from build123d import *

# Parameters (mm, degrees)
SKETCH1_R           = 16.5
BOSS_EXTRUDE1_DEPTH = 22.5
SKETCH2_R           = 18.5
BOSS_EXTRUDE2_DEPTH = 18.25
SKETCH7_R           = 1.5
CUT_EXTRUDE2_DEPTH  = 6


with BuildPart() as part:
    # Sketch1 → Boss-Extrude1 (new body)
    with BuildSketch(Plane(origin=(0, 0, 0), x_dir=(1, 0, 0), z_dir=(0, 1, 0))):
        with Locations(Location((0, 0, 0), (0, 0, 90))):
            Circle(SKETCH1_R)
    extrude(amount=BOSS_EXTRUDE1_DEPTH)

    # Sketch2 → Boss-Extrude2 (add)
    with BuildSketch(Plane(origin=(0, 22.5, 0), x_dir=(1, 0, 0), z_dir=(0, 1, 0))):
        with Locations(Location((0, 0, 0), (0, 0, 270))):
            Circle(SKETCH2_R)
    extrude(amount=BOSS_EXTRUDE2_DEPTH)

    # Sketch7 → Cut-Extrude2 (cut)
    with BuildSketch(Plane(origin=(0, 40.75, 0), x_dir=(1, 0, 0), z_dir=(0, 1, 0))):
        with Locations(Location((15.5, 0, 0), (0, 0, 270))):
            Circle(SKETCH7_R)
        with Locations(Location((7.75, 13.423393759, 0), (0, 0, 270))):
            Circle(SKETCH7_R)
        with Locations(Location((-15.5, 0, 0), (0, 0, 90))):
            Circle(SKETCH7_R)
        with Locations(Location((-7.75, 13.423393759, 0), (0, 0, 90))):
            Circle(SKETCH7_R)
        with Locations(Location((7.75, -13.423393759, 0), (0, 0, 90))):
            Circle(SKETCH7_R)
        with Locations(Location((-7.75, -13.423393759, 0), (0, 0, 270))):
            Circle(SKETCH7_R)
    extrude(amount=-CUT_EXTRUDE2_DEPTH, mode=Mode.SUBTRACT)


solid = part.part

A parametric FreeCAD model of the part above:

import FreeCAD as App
import Part
import Sketcher
from FreeCAD import Vector
Q = App.Units.Quantity

doc = App.newDocument("Part")
body = doc.addObject("PartDesign::Body", "Body")

# Sketch on XZ plane
sketch1 = body.newObject("Sketcher::SketchObject", "Sketch")
sketch1.AttachmentSupport = (doc.getObject("XZ_Plane"), [""])
sketch1.MapMode = "FlatFace"
sketch1.addGeometry(Part.Circle(Vector(0, 0, 0), Vector(0, 0, 1), 16.5), False)
sketch1.addConstraint([
    Sketcher.Constraint("Coincident", 0, 3, -1, 1),
    Sketcher.Constraint("Diameter", 0, Q("33 mm")),
])
pad1 = body.newObject("PartDesign::Pad", "Pad")
pad1.Profile = sketch1
pad1.Length = 22.5
pad1.Reversed = True

# Sketch on XZ plane
sketch2 = body.newObject("Sketcher::SketchObject", "Sketch001")
sketch2.AttachmentSupport = (doc.getObject("XZ_Plane"), [""])
sketch2.MapMode = "FlatFace"
sketch2.AttachmentOffset = App.Placement(Vector(0, 0, -22.5), App.Rotation())
sketch2.addGeometry(Part.Circle(Vector(0, 0, 0), Vector(0, 0, 1), 18.5), False)
sketch2.addConstraint([
    Sketcher.Constraint("Coincident", 0, 3, -1, 1),
    Sketcher.Constraint("Diameter", 0, Q("37 mm")),
])
pad2 = body.newObject("PartDesign::Pad", "Pad001")
pad2.Profile = sketch2
pad2.Length = 18.25
pad2.Reversed = True

# Sketch on XZ plane
sketch3 = body.newObject("Sketcher::SketchObject", "Sketch002")
sketch3.AttachmentSupport = (doc.getObject("XZ_Plane"), [""])
sketch3.MapMode = "FlatFace"
sketch3.AttachmentOffset = App.Placement(Vector(0, 0, -40.75), App.Rotation())
sketch3.addGeometry([
    Part.Circle(Vector(15.5, 0, 0), Vector(0, 0, 1), 1.5),  # 0
    Part.Circle(Vector(7.75, -13.423394, 0), Vector(0, 0, 1), 1.5),  # 1
    Part.Circle(Vector(-15.5, 0, 0), Vector(0, 0, 1), 1.5),  # 2
    Part.Circle(Vector(-7.75, -13.423394, 0), Vector(0, 0, 1), 1.5),  # 3
    Part.Circle(Vector(7.75, 13.423394, 0), Vector(0, 0, 1), 1.5),  # 4
    Part.Circle(Vector(-7.75, 13.423394, 0), Vector(0, 0, 1), 1.5),  # 5
], False)
sketch3.addConstraint([
    Sketcher.Constraint("Equal", 0, 1),
    Sketcher.Constraint("Equal", 1, 2),
    Sketcher.Constraint("Equal", 2, 3),
    Sketcher.Constraint("Equal", 3, 4),
    Sketcher.Constraint("Equal", 4, 5),
    Sketcher.Constraint("Symmetric", 0, 3, 2, 3, -1, 1),
    Sketcher.Constraint("Symmetric", 3, 3, 4, 3, -1, 1),
    Sketcher.Constraint("Symmetric", 1, 3, 5, 3, -1, 1),
    Sketcher.Constraint("Symmetric", 1, 3, 3, 3, -2),
    Sketcher.Constraint("PointOnObject", 0, 3, -1),
    Sketcher.Constraint("Diameter", 0, Q("3 mm")),
    Sketcher.Constraint("DistanceX", 2, 3, 0, 3, Q("31 mm")),
    Sketcher.Constraint("DistanceX", 3, 3, 1, 3, Q("15.5 mm")),
    Sketcher.Constraint("DistanceY", 1, 3, -1, 1, Q("13.423394 mm")),
])
pocket1 = body.newObject("PartDesign::Pocket", "Pocket")
pocket1.Profile = sketch3
pocket1.Length = 6
pocket1.Reversed = True

doc.recompute()
